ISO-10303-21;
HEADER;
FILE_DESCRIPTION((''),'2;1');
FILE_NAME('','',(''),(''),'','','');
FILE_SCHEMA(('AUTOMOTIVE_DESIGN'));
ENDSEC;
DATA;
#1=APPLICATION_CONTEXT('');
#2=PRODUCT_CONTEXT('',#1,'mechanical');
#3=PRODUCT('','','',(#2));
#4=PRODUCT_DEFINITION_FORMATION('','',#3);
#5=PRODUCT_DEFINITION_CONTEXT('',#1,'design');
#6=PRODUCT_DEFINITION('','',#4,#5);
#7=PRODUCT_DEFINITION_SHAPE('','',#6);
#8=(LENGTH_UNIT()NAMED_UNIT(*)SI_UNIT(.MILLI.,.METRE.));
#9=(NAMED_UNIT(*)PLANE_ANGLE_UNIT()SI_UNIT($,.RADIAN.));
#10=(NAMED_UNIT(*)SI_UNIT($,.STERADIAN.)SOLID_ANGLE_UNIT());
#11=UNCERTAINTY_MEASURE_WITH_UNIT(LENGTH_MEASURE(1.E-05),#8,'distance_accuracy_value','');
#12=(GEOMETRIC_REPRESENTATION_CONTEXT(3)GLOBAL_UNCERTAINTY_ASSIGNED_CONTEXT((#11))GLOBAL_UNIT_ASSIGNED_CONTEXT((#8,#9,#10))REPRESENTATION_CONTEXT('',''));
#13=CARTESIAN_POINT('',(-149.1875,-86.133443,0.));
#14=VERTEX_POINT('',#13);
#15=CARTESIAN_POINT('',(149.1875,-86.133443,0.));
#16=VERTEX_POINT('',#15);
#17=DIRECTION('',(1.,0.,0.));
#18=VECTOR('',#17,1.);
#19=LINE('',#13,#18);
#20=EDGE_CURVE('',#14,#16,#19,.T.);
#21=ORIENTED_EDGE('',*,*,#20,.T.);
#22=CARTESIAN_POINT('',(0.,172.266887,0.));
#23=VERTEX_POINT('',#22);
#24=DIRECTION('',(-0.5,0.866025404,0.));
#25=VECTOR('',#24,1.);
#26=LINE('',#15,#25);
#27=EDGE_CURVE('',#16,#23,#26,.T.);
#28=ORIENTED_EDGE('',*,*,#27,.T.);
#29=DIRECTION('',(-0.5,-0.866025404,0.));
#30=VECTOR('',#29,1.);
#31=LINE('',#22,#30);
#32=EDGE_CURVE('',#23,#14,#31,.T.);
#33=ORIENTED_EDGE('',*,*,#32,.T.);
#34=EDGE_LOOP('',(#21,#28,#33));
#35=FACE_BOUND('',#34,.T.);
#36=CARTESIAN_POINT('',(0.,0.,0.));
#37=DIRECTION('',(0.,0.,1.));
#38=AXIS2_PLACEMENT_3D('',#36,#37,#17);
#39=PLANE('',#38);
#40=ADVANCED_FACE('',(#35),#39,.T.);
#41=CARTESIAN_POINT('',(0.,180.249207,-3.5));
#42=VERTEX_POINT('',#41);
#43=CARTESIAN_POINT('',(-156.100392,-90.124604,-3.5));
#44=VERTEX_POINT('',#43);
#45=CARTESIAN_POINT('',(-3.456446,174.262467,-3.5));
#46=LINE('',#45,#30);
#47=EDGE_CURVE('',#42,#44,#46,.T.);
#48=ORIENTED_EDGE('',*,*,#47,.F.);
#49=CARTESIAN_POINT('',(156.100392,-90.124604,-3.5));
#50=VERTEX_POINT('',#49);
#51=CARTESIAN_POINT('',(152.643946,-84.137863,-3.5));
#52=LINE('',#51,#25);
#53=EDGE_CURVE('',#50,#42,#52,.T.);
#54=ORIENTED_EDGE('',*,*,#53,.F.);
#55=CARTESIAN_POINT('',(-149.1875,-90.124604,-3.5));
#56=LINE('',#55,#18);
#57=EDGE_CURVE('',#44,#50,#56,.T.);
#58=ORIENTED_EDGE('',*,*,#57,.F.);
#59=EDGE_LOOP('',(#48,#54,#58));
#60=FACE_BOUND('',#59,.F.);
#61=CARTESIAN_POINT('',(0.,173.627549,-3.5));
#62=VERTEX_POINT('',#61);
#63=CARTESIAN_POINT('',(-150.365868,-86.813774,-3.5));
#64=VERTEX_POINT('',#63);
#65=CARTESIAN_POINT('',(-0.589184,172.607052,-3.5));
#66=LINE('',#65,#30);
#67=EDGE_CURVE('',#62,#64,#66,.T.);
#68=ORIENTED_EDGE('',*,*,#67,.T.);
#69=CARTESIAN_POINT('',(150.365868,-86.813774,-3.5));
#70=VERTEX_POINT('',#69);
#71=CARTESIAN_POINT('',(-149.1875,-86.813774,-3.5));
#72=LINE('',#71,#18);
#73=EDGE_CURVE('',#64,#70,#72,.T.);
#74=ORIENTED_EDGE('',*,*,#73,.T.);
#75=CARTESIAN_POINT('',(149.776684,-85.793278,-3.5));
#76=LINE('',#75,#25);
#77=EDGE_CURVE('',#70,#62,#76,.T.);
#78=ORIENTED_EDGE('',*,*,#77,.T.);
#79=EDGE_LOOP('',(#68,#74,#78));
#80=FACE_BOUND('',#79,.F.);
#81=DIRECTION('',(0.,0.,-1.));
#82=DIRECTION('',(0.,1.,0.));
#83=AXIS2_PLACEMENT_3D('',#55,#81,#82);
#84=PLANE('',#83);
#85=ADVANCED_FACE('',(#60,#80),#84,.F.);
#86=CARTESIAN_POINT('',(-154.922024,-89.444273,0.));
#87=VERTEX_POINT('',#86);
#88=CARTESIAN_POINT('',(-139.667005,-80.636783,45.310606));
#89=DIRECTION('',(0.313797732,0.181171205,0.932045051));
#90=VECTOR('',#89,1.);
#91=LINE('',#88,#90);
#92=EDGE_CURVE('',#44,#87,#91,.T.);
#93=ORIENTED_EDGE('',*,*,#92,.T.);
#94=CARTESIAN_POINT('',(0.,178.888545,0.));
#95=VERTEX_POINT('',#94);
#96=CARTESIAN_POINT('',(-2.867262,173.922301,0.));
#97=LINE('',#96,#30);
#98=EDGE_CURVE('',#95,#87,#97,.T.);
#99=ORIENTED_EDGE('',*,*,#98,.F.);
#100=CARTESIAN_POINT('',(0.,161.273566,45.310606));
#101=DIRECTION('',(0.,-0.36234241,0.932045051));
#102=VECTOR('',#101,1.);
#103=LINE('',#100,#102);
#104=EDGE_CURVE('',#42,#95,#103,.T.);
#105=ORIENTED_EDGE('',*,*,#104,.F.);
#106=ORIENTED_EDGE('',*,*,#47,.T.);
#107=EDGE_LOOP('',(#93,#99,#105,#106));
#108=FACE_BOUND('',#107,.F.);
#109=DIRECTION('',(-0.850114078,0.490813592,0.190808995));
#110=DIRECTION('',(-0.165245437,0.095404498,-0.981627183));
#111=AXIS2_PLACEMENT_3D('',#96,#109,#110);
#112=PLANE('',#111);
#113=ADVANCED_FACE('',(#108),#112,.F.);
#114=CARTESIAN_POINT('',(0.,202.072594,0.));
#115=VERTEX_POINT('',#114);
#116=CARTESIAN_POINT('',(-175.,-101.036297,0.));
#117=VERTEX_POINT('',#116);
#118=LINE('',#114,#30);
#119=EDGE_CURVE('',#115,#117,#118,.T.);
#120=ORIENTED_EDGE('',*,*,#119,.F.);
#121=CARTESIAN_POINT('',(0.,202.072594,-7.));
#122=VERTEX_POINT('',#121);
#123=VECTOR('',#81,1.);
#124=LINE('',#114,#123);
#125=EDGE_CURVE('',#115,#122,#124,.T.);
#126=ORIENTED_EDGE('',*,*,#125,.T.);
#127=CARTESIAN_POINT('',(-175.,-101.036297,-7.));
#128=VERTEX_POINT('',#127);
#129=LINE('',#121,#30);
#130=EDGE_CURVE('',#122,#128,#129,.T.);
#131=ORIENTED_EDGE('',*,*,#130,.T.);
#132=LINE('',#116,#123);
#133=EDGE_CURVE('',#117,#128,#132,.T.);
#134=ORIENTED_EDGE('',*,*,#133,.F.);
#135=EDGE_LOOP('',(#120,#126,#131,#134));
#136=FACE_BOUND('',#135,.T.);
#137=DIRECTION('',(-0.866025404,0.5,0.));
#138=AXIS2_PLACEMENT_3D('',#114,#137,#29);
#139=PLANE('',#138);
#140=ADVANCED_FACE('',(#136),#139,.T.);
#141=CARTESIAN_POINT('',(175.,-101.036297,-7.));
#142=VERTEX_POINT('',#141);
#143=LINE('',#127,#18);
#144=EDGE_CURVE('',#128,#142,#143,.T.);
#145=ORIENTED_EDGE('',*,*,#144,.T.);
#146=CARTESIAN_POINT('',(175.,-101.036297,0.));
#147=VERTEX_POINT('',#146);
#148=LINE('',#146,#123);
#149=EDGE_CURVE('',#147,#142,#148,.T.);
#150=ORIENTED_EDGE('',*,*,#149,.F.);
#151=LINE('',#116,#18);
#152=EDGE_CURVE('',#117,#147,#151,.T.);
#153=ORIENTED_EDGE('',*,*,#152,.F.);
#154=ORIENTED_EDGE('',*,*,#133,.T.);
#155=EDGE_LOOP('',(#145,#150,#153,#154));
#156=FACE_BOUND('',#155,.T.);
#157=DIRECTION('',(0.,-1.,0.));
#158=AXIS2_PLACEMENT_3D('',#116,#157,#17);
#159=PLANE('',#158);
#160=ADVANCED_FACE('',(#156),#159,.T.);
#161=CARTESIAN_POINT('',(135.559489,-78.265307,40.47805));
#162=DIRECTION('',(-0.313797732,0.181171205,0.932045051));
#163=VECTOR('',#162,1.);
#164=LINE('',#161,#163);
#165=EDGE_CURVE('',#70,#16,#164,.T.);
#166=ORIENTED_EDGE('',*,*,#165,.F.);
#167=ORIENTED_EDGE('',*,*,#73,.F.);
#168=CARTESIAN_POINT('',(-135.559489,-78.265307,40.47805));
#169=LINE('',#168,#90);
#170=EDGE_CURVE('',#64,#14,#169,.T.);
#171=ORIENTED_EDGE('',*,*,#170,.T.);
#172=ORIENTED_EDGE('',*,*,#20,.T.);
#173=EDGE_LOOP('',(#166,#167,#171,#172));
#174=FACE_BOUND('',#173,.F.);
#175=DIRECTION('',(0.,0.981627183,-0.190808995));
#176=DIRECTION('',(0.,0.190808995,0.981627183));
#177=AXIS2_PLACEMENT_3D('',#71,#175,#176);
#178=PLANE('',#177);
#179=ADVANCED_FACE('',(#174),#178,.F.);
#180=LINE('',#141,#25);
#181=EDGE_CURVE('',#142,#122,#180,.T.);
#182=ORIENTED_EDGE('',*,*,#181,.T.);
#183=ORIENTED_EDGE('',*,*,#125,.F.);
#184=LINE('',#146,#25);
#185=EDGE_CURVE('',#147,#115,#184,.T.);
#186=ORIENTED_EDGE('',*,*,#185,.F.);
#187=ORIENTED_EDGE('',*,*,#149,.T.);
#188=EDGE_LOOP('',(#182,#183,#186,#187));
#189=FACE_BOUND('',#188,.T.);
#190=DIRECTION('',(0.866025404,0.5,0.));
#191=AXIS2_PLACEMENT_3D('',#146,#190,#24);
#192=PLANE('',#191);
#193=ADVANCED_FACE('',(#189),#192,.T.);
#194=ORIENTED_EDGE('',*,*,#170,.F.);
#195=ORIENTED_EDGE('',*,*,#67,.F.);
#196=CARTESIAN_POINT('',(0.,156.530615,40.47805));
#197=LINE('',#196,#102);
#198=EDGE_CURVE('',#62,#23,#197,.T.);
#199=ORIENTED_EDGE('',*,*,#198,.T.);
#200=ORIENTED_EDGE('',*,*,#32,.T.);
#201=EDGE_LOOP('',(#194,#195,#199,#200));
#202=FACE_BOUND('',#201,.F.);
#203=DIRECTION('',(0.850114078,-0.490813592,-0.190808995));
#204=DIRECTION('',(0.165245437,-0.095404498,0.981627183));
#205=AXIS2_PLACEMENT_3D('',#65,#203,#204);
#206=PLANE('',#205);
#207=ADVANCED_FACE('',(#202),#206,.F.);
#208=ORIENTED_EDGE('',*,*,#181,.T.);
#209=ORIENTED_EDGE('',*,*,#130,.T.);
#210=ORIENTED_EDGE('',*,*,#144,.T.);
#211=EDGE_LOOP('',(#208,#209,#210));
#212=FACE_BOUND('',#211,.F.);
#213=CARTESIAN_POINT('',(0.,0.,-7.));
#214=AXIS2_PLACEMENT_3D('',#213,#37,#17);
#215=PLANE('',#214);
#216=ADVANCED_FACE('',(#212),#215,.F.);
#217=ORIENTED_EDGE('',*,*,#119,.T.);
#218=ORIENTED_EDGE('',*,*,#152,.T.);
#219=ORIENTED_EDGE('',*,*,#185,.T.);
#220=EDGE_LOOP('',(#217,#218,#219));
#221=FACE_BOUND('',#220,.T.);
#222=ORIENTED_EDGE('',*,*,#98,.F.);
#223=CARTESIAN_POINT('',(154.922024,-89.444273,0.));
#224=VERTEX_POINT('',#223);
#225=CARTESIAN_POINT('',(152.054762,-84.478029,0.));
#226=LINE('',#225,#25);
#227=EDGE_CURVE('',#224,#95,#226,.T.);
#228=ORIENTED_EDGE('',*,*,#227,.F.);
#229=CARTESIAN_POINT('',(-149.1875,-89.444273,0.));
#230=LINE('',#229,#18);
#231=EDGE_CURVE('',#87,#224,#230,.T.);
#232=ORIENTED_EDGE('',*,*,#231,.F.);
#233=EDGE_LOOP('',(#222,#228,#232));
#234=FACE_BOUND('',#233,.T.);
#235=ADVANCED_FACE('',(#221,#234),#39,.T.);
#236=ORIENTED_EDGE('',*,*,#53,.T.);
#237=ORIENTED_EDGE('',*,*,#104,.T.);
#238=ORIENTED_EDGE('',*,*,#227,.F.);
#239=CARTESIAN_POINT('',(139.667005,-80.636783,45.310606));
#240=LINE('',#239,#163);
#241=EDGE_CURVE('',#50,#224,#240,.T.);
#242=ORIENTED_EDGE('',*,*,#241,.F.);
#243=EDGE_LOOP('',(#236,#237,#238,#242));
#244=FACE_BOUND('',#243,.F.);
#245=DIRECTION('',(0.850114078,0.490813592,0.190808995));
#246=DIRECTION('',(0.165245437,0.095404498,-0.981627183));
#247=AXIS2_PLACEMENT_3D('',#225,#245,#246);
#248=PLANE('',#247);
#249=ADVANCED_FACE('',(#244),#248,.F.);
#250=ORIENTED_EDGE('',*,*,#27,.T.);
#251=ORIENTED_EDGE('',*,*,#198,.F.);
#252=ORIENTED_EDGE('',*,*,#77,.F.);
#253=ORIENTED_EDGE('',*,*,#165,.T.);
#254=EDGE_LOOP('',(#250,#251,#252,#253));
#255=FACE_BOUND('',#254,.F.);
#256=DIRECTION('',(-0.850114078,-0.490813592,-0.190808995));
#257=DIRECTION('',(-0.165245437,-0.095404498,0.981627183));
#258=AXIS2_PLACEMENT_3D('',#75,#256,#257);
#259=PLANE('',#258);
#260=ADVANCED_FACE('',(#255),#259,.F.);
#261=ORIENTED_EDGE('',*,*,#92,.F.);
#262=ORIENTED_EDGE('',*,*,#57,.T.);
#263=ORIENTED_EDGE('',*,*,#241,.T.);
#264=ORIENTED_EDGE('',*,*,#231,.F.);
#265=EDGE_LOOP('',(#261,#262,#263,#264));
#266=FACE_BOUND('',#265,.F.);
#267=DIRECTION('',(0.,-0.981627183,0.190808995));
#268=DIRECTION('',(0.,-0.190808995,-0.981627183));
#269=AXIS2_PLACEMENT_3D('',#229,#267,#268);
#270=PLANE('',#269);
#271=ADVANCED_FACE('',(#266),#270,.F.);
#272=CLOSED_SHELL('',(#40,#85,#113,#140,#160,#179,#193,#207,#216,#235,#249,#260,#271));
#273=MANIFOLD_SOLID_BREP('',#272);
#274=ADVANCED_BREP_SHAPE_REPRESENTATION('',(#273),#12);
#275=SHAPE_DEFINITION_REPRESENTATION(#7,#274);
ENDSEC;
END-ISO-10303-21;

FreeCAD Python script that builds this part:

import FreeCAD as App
import Part
import Sketcher

V = App.Vector
Q = App.Units.Quantity

doc = App.newDocument("Part")
body = doc.addObject("PartDesign::Body", "Body")

sketch1 = body.newObject("Sketcher::SketchObject", "Sketch")
sketch1.AttachmentSupport = (doc.getObject("XY_Plane"), [""])
sketch1.MapMode = "FlatFace"
sketch1.addGeometry([
    Part.LineSegment(V(175, -101, 0), V(0, 202, 0)),
    Part.LineSegment(V(0, 202, 0), V(-175, -101, 0)),
    Part.LineSegment(V(-175, -101, 0), V(175, -101, 0)),
], False)
sketch1.addConstraint([
    Sketcher.Constraint("Coincident", 0, 2, 1, 1),
    Sketcher.Constraint("Coincident", 1, 2, 2, 1),
    Sketcher.Constraint("Coincident", 2, 2, 0, 1),
    Sketcher.Constraint("Horizontal", 2),
    Sketcher.Constraint("PointOnObject", 0, 2, -2),
    Sketcher.Constraint("Equal", 0, 1),
    Sketcher.Constraint("DistanceX", 2, 1, 2, 2, 350.0),
    Sketcher.Constraint("Angle", 0, Q("120 deg")),
    Sketcher.Constraint("DistanceY", -1, 1, 0, 2, 202.072594),
])
pad1 = body.newObject("PartDesign::Pad", "Pad")
pad1.Profile = sketch1
pad1.Length = 7
pad1.Reversed = True

sketch2 = body.newObject("Sketcher::SketchObject", "Sketch001")
sketch2.AttachmentSupport = (doc.getObject("YZ_Plane"), [""])
sketch2.MapMode = "FlatFace"
sketch2.addGeometry([
    Part.LineSegment(V(-86.8, -3.5, 0), V(-86.1, 0, 0)),
    Part.LineSegment(V(-86.1, 0, 0), V(-89.4, 0, 0)),
    Part.LineSegment(V(-89.4, 0, 0), V(-90.1, -3.5, 0)),
    Part.LineSegment(V(-90.1, -3.5, 0), V(-86.8, -3.5, 0)),
], False)
sketch2.addConstraint([
    Sketcher.Constraint("Coincident", 0, 2, 1, 1),
    Sketcher.Constraint("Coincident", 1, 2, 2, 1),
    Sketcher.Constraint("Coincident", 2, 2, 3, 1),
    Sketcher.Constraint("Coincident", 3, 2, 0, 1),
    Sketcher.Constraint("Horizontal", 1),
    Sketcher.Constraint("Horizontal", 3),
    Sketcher.Constraint("PointOnObject", 0, 2, -1),
    Sketcher.Constraint("Parallel", 0, 2),
    Sketcher.Constraint("Angle", 0, Q("79 deg")),
    Sketcher.Constraint("DistanceY", 2, 2, -1, 1, 3.5),
    Sketcher.Constraint("DistanceX", 1, 2, 1, 1, 3.310829),
    Sketcher.Constraint("DistanceX", 0, 2, -1, 1, 86.133443),
])

sketch3 = body.newObject("Sketcher::SketchObject", "Sketch002")
sketch3.AttachmentSupport = (doc.getObject("XY_Plane"), [""])
sketch3.MapMode = "FlatFace"
sketch3.addGeometry([
    Part.LineSegment(V(-149, -86, 0), V(149, -86, 0)),
    Part.LineSegment(V(149, -86, 0), V(0, 172, 0)),
    Part.LineSegment(V(0, 172, 0), V(-149, -86, 0)),
], False)
sketch3.addConstraint([
    Sketcher.Constraint("Coincident", 0, 2, 1, 1),
    Sketcher.Constraint("Coincident", 1, 2, 2, 1),
    Sketcher.Constraint("Coincident", 2, 2, 0, 1),
    Sketcher.Constraint("Horizontal", 0),
    Sketcher.Constraint("PointOnObject", 1, 2, -2),
    Sketcher.Constraint("Equal", 1, 2),
    Sketcher.Constraint("Angle", 1, Q("120 deg")),
    Sketcher.Constraint("DistanceX", 0, 1, 0, 2, 298.375),
    Sketcher.Constraint("DistanceY", 0, 2, -1, 1, 86.133443),
])
doc.recompute()

subtractivepipe = body.newObject("PartDesign::SubtractivePipe", "SubtractivePipe")
subtractivepipe.Profile = sketch2
subtractivepipe.Spine = (sketch3, ["Edge1", "Edge2", "Edge3"])
subtractivepipe.Transition = "Right corner"

doc.recompute()
